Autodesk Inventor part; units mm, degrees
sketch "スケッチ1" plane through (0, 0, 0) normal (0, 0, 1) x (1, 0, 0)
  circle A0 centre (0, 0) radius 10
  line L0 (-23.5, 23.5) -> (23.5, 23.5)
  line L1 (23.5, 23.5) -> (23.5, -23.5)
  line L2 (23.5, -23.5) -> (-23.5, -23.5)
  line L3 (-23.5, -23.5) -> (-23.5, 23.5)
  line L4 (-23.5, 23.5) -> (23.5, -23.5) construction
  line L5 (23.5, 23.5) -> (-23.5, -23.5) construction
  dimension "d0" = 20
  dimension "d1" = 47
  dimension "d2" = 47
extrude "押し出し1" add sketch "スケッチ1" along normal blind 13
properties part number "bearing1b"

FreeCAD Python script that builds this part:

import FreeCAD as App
import Part
import Sketcher

V = App.Vector

doc = App.newDocument("Part")
params = doc.addObject("Spreadsheet::Sheet", "Params")
for row, (alias, value) in enumerate([
    ("sketch1_diameter", "20 mm"),
    ("sketch1_width", "47 mm"),
    ("pad1_length", "13 mm"),
], start=1):
    params.set(f"A{row}", alias)
    params.set(f"B{row}", "=" + value)
    params.setAlias(f"B{row}", alias)

body = doc.addObject("PartDesign::Body", "Body")

sketch1 = body.newObject("Sketcher::SketchObject", "Sketch")
sketch1.AttachmentSupport = (doc.getObject("XY_Plane"), [""])
sketch1.MapMode = "FlatFace"
sketch1.addGeometry([
    Part.LineSegment(V(24, 24, 0), V(-24, 24, 0)),
    Part.LineSegment(V(-24, 24, 0), V(-24, -24, 0)),
    Part.LineSegment(V(-24, -24, 0), V(24, -24, 0)),
    Part.LineSegment(V(24, -24, 0), V(24, 24, 0)),
    Part.Circle(V(0, 0, 0), V(0, 0, 1), 10),
], False)
sketch1.addConstraint([
    Sketcher.Constraint("Coincident", 0, 2, 1, 1),
    Sketcher.Constraint("Coincident", 1, 2, 2, 1),
    Sketcher.Constraint("Coincident", 2, 2, 3, 1),
    Sketcher.Constraint("Coincident", 3, 2, 0, 1),
    Sketcher.Constraint("Horizontal", 0),
    Sketcher.Constraint("Vertical", 1),
    Sketcher.Constraint("Horizontal", 2),
    Sketcher.Constraint("Vertical", 3),
    Sketcher.Constraint("Coincident", 4, 3, -1, 1),
    Sketcher.Constraint("Symmetric", 0, 2, 2, 2, -1, 1),
    Sketcher.Constraint("Equal", 2, 1),
    Sketcher.Constraint("Diameter", 4, 20.0),
    Sketcher.Constraint("DistanceX", 0, 2, 0, 1, 47.0),
])
sketch1.setExpression("Constraints[11]", "Params.sketch1_diameter")
sketch1.setExpression("Constraints[12]", "Params.sketch1_width")
pad1 = body.newObject("PartDesign::Pad", "Pad")
pad1.Profile = sketch1
pad1.setExpression("Length", "Params.pad1_length")

doc.recompute()
